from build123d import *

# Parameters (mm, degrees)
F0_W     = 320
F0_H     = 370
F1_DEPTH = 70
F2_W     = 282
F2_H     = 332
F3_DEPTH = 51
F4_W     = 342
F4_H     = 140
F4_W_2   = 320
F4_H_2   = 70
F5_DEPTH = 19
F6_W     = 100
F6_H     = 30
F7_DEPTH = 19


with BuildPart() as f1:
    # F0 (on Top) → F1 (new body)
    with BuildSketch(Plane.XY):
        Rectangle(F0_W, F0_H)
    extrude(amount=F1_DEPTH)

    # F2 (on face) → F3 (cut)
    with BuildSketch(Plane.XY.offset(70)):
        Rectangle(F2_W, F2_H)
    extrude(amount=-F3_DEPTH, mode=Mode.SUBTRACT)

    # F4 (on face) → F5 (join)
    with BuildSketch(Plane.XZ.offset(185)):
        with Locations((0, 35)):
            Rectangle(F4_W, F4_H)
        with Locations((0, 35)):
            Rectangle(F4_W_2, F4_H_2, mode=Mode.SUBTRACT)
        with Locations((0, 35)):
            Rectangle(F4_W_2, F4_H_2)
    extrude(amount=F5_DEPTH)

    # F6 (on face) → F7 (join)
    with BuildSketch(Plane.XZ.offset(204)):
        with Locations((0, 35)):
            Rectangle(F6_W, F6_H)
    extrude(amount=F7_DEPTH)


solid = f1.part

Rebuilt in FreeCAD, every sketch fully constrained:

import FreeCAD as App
import Part
import Sketcher

doc = App.newDocument("Part")
params = doc.addObject("Spreadsheet::Sheet", "Params")
for row, (alias, value) in enumerate([
    ("sketch1_width", "320 mm"),
    ("sketch1_height", "370 mm"),
    ("pad1_length", "70 mm"),
    ("sketch2_width", "282 mm"),
    ("sketch2_height", "332 mm"),
    ("pocket1_length", "51 mm"),
    ("sketch3_width", "342 mm"),
    ("sketch3_height", "140 mm"),
    ("pad2_length", "19 mm"),
    ("sketch4_width", "100 mm"),
    ("sketch4_height", "30 mm"),
    ("pad3_length", "19 mm"),
], start=1):
    params.set(f"A{row}", alias)
    params.set(f"B{row}", "=" + value)
    params.setAlias(f"B{row}", alias)

body = doc.addObject("PartDesign::Body", "Body")

# Sketch on XY plane
sketch1 = body.newObject("Sketcher::SketchObject", "Sketch")
sketch1.AttachmentSupport = (doc.getObject("XY_Plane"), [""])
sketch1.MapMode = "FlatFace"
sketch1.addGeometry([
    Part.LineSegment(App.Vector(-160, 185, 0), App.Vector(-160, -185, 0)),
    Part.LineSegment(App.Vector(-160, -185, 0), App.Vector(160, -185, 0)),
    Part.LineSegment(App.Vector(160, -185, 0), App.Vector(160, 185, 0)),
    Part.LineSegment(App.Vector(160, 185, 0), App.Vector(-160, 185, 0)),
], False)
sketch1.addConstraint([
    Sketcher.Constraint("Coincident", 0, 2, 1, 1),
    Sketcher.Constraint("Coincident", 1, 2, 2, 1),
    Sketcher.Constraint("Coincident", 2, 2, 3, 1),
    Sketcher.Constraint("Coincident", 3, 2, 0, 1),
    Sketcher.Constraint("Vertical", 0),
    Sketcher.Constraint("Horizontal", 1),
    Sketcher.Constraint("Vertical", 2),
    Sketcher.Constraint("Horizontal", 3),
    Sketcher.Constraint("Symmetric", 0, 2, 2, 2, -1, 1),
    Sketcher.Constraint("DistanceX", 1, 1, 1, 2, 320.0),
    Sketcher.Constraint("DistanceY", 0, 2, 0, 1, 370.0),
])
sketch1.setExpression("Constraints[9]", "Params.sketch1_width")
sketch1.setExpression("Constraints[10]", "Params.sketch1_height")
pad1 = body.newObject("PartDesign::Pad", "Pad")
pad1.Profile = sketch1
pad1.setExpression("Length", "Params.pad1_length")

# Sketch on XY plane
sketch2 = body.newObject("Sketcher::SketchObject", "Sketch001")
sketch2.AttachmentSupport = (doc.getObject("XY_Plane"), [""])
sketch2.MapMode = "FlatFace"
sketch2.AttachmentOffset = App.Placement(App.Vector(0, 0, 70), App.Rotation())
sketch2.addGeometry([
    Part.LineSegment(App.Vector(-141, 166, 0), App.Vector(-141, -166, 0)),
    Part.LineSegment(App.Vector(-141, -166, 0), App.Vector(141, -166, 0)),
    Part.LineSegment(App.Vector(141, -166, 0), App.Vector(141, 166, 0)),
    Part.LineSegment(App.Vector(141, 166, 0), App.Vector(-141, 166, 0)),
], False)
sketch2.addConstraint([
    Sketcher.Constraint("Coincident", 0, 2, 1, 1),
    Sketcher.Constraint("Coincident", 1, 2, 2, 1),
    Sketcher.Constraint("Coincident", 2, 2, 3, 1),
    Sketcher.Constraint("Coincident", 3, 2, 0, 1),
    Sketcher.Constraint("Vertical", 0),
    Sketcher.Constraint("Horizontal", 1),
    Sketcher.Constraint("Vertical", 2),
    Sketcher.Constraint("Horizontal", 3),
    Sketcher.Constraint("Symmetric", 0, 2, 2, 2, -1, 1),
    Sketcher.Constraint("DistanceX", 1, 1, 1, 2, 282.0),
    Sketcher.Constraint("DistanceY", 0, 2, 0, 1, 332.0),
])
sketch2.setExpression("Constraints[9]", "Params.sketch2_width")
sketch2.setExpression("Constraints[10]", "Params.sketch2_height")
pocket1 = body.newObject("PartDesign::Pocket", "Pocket")
pocket1.Profile = sketch2
pocket1.setExpression("Length", "Params.pocket1_length")

# Sketch on XZ plane
sketch3 = body.newObject("Sketcher::SketchObject", "Sketch002")
sketch3.AttachmentSupport = (doc.getObject("XZ_Plane"), [""])
sketch3.MapMode = "FlatFace"
sketch3.AttachmentOffset = App.Placement(App.Vector(0, 0, 185), App.Rotation())
sketch3.addGeometry([
    Part.LineSegment(App.Vector(-171, 105, 0), App.Vector(-171, -35, 0)),
    Part.LineSegment(App.Vector(-171, -35, 0), App.Vector(171, -35, 0)),
    Part.LineSegment(App.Vector(171, -35, 0), App.Vector(171, 105, 0)),
    Part.LineSegment(App.Vector(171, 105, 0), App.Vector(-171, 105, 0)),
], False)
sketch3.addConstraint([
    Sketcher.Constraint("Coincident", 0, 2, 1, 1),
    Sketcher.Constraint("Coincident", 1, 2, 2, 1),
    Sketcher.Constraint("Coincident", 2, 2, 3, 1),
    Sketcher.Constraint("Coincident", 3, 2, 0, 1),
    Sketcher.Constraint("Vertical", 0),
    Sketcher.Constraint("Horizontal", 1),
    Sketcher.Constraint("Vertical", 2),
    Sketcher.Constraint("Horizontal", 3),
    Sketcher.Constraint("DistanceX", 1, 1, 1, 2, 342.0),
    Sketcher.Constraint("DistanceY", 0, 2, 0, 1, 140.0),
    Sketcher.Constraint("DistanceX", 0, 2, -1, 1, 171.0),
    Sketcher.Constraint("DistanceY", 0, 2, -1, 1, 35.0),
])
sketch3.setExpression("Constraints[8]", "Params.sketch3_width")
sketch3.setExpression("Constraints[9]", "Params.sketch3_height")
pad2 = body.newObject("PartDesign::Pad", "Pad001")
pad2.Profile = sketch3
pad2.setExpression("Length", "Params.pad2_length")

# Sketch on XZ plane
sketch4 = body.newObject("Sketcher::SketchObject", "Sketch003")
sketch4.AttachmentSupport = (doc.getObject("XZ_Plane"), [""])
sketch4.MapMode = "FlatFace"
sketch4.AttachmentOffset = App.Placement(App.Vector(0, 0, 204), App.Rotation())
sketch4.addGeometry([
    Part.LineSegment(App.Vector(-50, 50, 0), App.Vector(-50, 20, 0)),
    Part.LineSegment(App.Vector(-50, 20, 0), App.Vector(50, 20, 0)),
    Part.LineSegment(App.Vector(50, 20, 0), App.Vector(50, 50, 0)),
    Part.LineSegment(App.Vector(50, 50, 0), App.Vector(-50, 50, 0)),
], False)
sketch4.addConstraint([
    Sketcher.Constraint("Coincident", 0, 2, 1, 1),
    Sketcher.Constraint("Coincident", 1, 2, 2, 1),
    Sketcher.Constraint("Coincident", 2, 2, 3, 1),
    Sketcher.Constraint("Coincident", 3, 2, 0, 1),
    Sketcher.Constraint("Vertical", 0),
    Sketcher.Constraint("Horizontal", 1),
    Sketcher.Constraint("Vertical", 2),
    Sketcher.Constraint("Horizontal", 3),
    Sketcher.Constraint("DistanceX", 1, 1, 1, 2, 100.0),
    Sketcher.Constraint("DistanceY", 0, 2, 0, 1, 30.0),
    Sketcher.Constraint("DistanceX", 0, 2, -1, 1, 50.0),
    Sketcher.Constraint("DistanceY", -1, 1, 0, 2, 20.0),
])
sketch4.setExpression("Constraints[8]", "Params.sketch4_width")
sketch4.setExpression("Constraints[9]", "Params.sketch4_height")
pad3 = body.newObject("PartDesign::Pad", "Pad002")
pad3.Profile = sketch4
pad3.setExpression("Length", "Params.pad3_length")

doc.recompute()
